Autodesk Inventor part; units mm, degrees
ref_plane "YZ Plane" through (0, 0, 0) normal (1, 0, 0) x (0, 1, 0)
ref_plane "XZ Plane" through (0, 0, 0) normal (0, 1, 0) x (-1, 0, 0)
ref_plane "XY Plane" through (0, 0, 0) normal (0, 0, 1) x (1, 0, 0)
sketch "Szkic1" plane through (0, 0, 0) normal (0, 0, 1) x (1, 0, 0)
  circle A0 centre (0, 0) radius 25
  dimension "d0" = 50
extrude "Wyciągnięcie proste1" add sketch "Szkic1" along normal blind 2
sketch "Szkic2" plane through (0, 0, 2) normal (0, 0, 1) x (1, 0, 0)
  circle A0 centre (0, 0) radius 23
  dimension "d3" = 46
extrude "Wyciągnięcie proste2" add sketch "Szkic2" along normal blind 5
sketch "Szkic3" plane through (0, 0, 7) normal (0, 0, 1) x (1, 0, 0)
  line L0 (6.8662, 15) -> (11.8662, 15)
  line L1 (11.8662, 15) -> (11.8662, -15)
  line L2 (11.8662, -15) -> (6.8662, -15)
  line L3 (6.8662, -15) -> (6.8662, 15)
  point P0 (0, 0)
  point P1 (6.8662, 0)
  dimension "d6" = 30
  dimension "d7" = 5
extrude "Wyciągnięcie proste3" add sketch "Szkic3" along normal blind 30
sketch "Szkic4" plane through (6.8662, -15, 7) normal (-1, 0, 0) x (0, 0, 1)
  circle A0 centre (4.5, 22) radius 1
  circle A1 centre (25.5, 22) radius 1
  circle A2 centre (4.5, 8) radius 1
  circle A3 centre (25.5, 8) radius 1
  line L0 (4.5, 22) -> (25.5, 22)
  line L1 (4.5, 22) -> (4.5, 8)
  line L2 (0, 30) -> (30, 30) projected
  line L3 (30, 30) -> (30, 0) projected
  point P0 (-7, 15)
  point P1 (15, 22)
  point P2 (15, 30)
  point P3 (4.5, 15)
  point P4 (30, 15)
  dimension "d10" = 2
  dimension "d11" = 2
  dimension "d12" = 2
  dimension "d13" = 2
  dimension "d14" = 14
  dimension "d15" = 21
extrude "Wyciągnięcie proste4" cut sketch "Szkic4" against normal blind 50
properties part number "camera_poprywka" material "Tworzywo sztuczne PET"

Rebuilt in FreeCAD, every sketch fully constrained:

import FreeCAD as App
import Part
import Sketcher
from FreeCAD import Vector
Q = App.Units.Quantity


def add_polygon(sketch, points):
    """Adds a closed chain of lines whose ends are joined by coincident constraints."""
    first, n = sketch.GeometryCount, len(points)
    for a, b in zip(points, points[1:] + points[:1]):
        sketch.addGeometry(Part.LineSegment(App.Vector(*a, 0), App.Vector(*b, 0)), False)
    for i in range(n):
        sketch.addConstraint(Sketcher.Constraint("Coincident", first + i, 2, first + (i + 1) % n, 1))

doc = App.newDocument("Part")
body = doc.addObject("PartDesign::Body", "Body")

# Sketch on XY plane
sketch1 = body.newObject("Sketcher::SketchObject", "Sketch")
sketch1.AttachmentSupport = (doc.getObject("XY_Plane"), [""])
sketch1.MapMode = "FlatFace"
sketch1.addGeometry(Part.Circle(Vector(0, 0, 0), Vector(0, 0, 1), 25), False)
sketch1.addConstraint([
    Sketcher.Constraint("Coincident", 0, 3, -1, 1),
    Sketcher.Constraint("Diameter", 0, Q("50 mm")),
])
pad1 = body.newObject("PartDesign::Pad", "Pad")
pad1.Profile = sketch1
pad1.Length = 2

# Sketch on XY plane
sketch2 = body.newObject("Sketcher::SketchObject", "Sketch001")
sketch2.AttachmentSupport = (doc.getObject("XY_Plane"), [""])
sketch2.MapMode = "FlatFace"
sketch2.AttachmentOffset = App.Placement(Vector(0, 0, 2), App.Rotation())
sketch2.addGeometry(Part.Circle(Vector(0, 0, 0), Vector(0, 0, 1), 23), False)
sketch2.addConstraint([
    Sketcher.Constraint("Coincident", 0, 3, -1, 1),
    Sketcher.Constraint("Diameter", 0, Q("46 mm")),
])
pad2 = body.newObject("PartDesign::Pad", "Pad001")
pad2.Profile = sketch2
pad2.Length = 5

# Sketch on XY plane
sketch3 = body.newObject("Sketcher::SketchObject", "Sketch002")
sketch3.AttachmentSupport = (doc.getObject("XY_Plane"), [""])
sketch3.MapMode = "FlatFace"
sketch3.AttachmentOffset = App.Placement(Vector(0, 0, 7), App.Rotation())
add_polygon(sketch3, [(11.9, 15), (6.9, 15), (6.9, -15), (11.9, -15)])  # lines 0-3
sketch3.addConstraint([
    Sketcher.Constraint("Horizontal", 0),
    Sketcher.Constraint("Vertical", 1),
    Sketcher.Constraint("Horizontal", 2),
    Sketcher.Constraint("Vertical", 3),
    Sketcher.Constraint("DistanceX", 0, 2, 0, 1, Q("5 mm")),
    Sketcher.Constraint("DistanceY", 1, 2, 1, 1, Q("30 mm")),
    Sketcher.Constraint("DistanceY", -1, 1, 0, 2, Q("15 mm")),
    Sketcher.Constraint("DistanceX", -1, 1, 0, 2, Q("6.8662 mm")),
])
pad3 = body.newObject("PartDesign::Pad", "Pad002")
pad3.Profile = sketch3
pad3.Length = 30

# Sketch on YZ plane
sketch4 = body.newObject("Sketcher::SketchObject", "Sketch003")
sketch4.AttachmentSupport = (doc.getObject("YZ_Plane"), [""])
sketch4.MapMode = "FlatFace"
sketch4.AttachmentOffset = App.Placement(Vector(0, 0, 6.8662), App.Rotation())
sketch4.addGeometry([
    Part.Circle(Vector(7, 11.5, 0), Vector(0, 0, 1), 1),
    Part.Circle(Vector(-7, 11.5, 0), Vector(0, 0, 1), 1),
    Part.Circle(Vector(7, 32.5, 0), Vector(0, 0, 1), 1),
    Part.Circle(Vector(-7, 32.5, 0), Vector(0, 0, 1), 1),
], False)
sketch4.addConstraint([
    Sketcher.Constraint("Equal", 0, 1),
    Sketcher.Constraint("Equal", 1, 2),
    Sketcher.Constraint("Equal", 2, 3),
    Sketcher.Constraint("Symmetric", 0, 3, 1, 3, -2),
    Sketcher.Constraint("Symmetric", 2, 3, 3, 3, -2),
    Sketcher.Constraint("Vertical", 0, 3, 2, 3),
    Sketcher.Constraint("Diameter", 0, Q("2 mm")),
    Sketcher.Constraint("DistanceX", 1, 3, 0, 3, Q("14 mm")),
    Sketcher.Constraint("DistanceY", 0, 3, 2, 3, Q("21 mm")),
    Sketcher.Constraint("DistanceY", -1, 1, 0, 3, Q("11.5 mm")),
])
pocket1 = body.newObject("PartDesign::Pocket", "Pocket")
pocket1.Profile = sketch4
pocket1.Length = 50
pocket1.Reversed = True

doc.recompute()
